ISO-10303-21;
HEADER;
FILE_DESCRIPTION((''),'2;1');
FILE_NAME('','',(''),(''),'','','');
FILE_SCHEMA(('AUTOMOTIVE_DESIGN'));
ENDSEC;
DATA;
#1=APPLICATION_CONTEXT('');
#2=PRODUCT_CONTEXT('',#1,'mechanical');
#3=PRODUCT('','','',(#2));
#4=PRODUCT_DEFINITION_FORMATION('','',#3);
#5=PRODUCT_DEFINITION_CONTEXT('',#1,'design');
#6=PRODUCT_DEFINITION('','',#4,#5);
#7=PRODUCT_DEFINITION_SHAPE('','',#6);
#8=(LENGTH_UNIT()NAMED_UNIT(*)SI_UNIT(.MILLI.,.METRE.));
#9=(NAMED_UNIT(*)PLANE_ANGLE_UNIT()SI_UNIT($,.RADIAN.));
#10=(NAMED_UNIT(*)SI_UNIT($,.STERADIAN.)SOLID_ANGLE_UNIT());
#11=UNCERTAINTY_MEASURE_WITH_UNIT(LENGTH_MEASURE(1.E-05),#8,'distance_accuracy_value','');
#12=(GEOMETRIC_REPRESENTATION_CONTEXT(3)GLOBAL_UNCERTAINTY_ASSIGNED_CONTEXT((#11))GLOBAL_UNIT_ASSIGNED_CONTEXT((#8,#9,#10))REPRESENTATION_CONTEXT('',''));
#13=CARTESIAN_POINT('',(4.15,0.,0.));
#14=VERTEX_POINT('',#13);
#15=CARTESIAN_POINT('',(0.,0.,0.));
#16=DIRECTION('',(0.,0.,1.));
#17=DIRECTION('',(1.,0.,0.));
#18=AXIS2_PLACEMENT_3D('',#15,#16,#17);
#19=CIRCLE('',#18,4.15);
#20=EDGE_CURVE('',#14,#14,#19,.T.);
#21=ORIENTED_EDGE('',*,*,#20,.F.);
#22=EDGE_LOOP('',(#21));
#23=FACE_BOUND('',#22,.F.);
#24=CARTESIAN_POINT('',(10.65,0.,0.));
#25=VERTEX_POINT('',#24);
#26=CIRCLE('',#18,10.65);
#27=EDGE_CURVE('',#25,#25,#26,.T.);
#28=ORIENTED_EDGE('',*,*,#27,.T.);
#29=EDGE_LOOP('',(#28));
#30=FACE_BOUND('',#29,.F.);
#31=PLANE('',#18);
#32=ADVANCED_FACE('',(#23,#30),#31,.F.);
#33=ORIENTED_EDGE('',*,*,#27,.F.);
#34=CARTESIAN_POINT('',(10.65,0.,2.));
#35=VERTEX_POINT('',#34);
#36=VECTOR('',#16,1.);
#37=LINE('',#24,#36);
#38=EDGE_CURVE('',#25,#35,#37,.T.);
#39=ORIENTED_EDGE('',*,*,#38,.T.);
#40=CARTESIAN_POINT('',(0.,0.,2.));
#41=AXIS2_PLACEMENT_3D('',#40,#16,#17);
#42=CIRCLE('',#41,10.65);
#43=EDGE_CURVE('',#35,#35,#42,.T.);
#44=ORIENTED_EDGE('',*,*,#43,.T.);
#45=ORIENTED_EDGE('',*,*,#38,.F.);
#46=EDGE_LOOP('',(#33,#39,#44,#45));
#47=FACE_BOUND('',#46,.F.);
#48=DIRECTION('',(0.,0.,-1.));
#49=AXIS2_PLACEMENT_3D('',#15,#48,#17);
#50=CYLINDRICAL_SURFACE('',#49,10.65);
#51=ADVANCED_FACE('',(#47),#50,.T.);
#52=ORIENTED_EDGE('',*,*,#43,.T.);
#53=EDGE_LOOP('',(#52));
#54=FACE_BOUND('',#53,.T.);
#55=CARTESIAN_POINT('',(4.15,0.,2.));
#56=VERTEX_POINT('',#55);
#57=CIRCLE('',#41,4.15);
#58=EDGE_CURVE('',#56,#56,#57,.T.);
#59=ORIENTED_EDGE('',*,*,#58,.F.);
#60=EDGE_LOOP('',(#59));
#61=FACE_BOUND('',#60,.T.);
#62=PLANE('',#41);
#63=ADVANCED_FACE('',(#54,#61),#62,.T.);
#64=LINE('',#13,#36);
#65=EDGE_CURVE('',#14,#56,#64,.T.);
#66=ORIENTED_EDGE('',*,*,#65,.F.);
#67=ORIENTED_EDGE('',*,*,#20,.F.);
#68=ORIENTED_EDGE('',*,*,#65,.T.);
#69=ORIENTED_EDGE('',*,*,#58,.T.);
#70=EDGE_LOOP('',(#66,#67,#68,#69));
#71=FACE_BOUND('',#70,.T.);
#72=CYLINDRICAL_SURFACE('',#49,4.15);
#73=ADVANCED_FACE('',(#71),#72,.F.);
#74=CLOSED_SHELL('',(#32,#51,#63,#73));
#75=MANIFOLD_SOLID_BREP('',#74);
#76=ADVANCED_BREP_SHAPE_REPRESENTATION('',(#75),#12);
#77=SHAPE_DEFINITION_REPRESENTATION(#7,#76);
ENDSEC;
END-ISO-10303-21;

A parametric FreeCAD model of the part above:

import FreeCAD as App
import Part
import Sketcher

doc = App.newDocument("Part")
params = doc.addObject("Spreadsheet::Sheet", "Params")
for row, (alias, value) in enumerate([
    ("sketch1_diameter", "21.3 mm"),
    ("sketch1_diameter2", "8.3 mm"),
    ("pad1_length", "2 mm"),
], start=1):
    params.set(f"A{row}", alias)
    params.set(f"B{row}", "=" + value)
    params.setAlias(f"B{row}", alias)

body = doc.addObject("PartDesign::Body", "Body")

sketch1 = body.newObject("Sketcher::SketchObject", "Sketch")
sketch1.AttachmentSupport = (doc.getObject("XY_Plane"), [""])
sketch1.MapMode = "FlatFace"
sketch1.addGeometry([
    Part.Circle(App.Vector(0, 0, 0), App.Vector(0, 0, 1), 10.65),
    Part.Circle(App.Vector(0, 0, 0), App.Vector(0, 0, 1), 4.15),
], False)
sketch1.addConstraint([
    Sketcher.Constraint("Coincident", 0, 3, -1, 1),
    Sketcher.Constraint("Coincident", 1, 3, -1, 1),
    Sketcher.Constraint("Diameter", 0, 21.3),
    Sketcher.Constraint("Diameter", 1, 8.3),
])
sketch1.setExpression("Constraints[2]", "Params.sketch1_diameter")
sketch1.setExpression("Constraints[3]", "Params.sketch1_diameter2")
pad1 = body.newObject("PartDesign::Pad", "Pad")
pad1.Profile = sketch1
pad1.setExpression("Length", "Params.pad1_length")

doc.recompute()
